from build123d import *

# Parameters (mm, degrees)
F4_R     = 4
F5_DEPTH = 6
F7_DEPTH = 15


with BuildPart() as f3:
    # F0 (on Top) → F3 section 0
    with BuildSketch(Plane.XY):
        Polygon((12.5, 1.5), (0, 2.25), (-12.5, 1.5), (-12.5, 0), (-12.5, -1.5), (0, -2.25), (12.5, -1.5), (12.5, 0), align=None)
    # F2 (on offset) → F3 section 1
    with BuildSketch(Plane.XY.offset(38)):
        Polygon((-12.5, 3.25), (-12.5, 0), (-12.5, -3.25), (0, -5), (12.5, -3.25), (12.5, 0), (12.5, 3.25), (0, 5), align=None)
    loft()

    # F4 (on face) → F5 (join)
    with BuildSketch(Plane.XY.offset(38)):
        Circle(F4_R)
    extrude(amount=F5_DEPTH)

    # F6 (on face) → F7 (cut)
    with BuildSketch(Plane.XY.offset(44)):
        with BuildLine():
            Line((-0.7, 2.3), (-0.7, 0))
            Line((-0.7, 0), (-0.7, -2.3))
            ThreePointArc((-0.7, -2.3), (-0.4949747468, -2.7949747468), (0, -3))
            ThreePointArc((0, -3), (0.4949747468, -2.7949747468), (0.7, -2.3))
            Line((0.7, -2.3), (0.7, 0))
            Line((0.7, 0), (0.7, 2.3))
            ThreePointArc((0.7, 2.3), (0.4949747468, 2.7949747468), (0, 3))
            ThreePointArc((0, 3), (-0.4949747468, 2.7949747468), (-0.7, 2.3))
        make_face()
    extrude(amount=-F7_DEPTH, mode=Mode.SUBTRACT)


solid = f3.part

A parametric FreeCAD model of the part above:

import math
import FreeCAD as App
import Part
import Sketcher

V = App.Vector
Q = App.Units.Quantity

doc = App.newDocument("Part")
params = doc.addObject("Spreadsheet::Sheet", "Params")
for row, (alias, value) in enumerate([
    ("sketch1_height", "3 mm"),
    ("sketch2_height", "6.5 mm"),
    ("sketch3_diameter", "8 mm"),
    ("pad1_length", "6 mm"),
    ("sketch4_radius", "0.7 mm"),
    ("sketch4_height", "4.6 mm"),
    ("pocket1_length", "15 mm"),
], start=1):
    params.set(f"A{row}", alias)
    params.set(f"B{row}", "=" + value)
    params.setAlias(f"B{row}", alias)

body = doc.addObject("PartDesign::Body", "Body")

sketch1 = doc.addObject("Sketcher::SketchObject", "Sketch")
body.addObject(sketch1)
sketch1.AttachmentSupport = (doc.XY_Plane, [""])
sketch1.MapMode = "FlatFace"
sketch1.addGeometry(Part.LineSegment(V(12.5, 1.5, 0), V(0, 2.2, 0)), False)
sketch1.addGeometry(Part.LineSegment(V(0, 2.2, 0), V(-12.5, 1.5, 0)), False)
sketch1.addGeometry(Part.LineSegment(V(-12.5, 1.5, 0), V(-12.5, -1.5, 0)), False)
sketch1.addGeometry(Part.LineSegment(V(-12.5, -1.5, 0), V(0, -2.2, 0)), False)
sketch1.addGeometry(Part.LineSegment(V(0, -2.2, 0), V(12.5, -1.5, 0)), False)
sketch1.addGeometry(Part.LineSegment(V(12.5, -1.5, 0), V(12.5, 1.5, 0)), False)
sketch1.addConstraint(Sketcher.Constraint("Coincident", 0, 2, 1, 1))
sketch1.addConstraint(Sketcher.Constraint("Coincident", 1, 2, 2, 1))
sketch1.addConstraint(Sketcher.Constraint("Coincident", 2, 2, 3, 1))
sketch1.addConstraint(Sketcher.Constraint("Coincident", 3, 2, 4, 1))
sketch1.addConstraint(Sketcher.Constraint("Coincident", 4, 2, 5, 1))
sketch1.addConstraint(Sketcher.Constraint("Coincident", 5, 2, 0, 1))
sketch1.addConstraint(Sketcher.Constraint("Vertical", 2))
sketch1.addConstraint(Sketcher.Constraint("Vertical", 5))
sketch1.addConstraint(Sketcher.Constraint("Symmetric", 0, 2, 3, 2, -1, 1))
sketch1.addConstraint(Sketcher.Constraint("Symmetric", 1, 2, 4, 2, -1, 1))
sketch1.addConstraint(Sketcher.Constraint("PointOnObject", 0, 2, -2))
sketch1.addConstraint(Sketcher.Constraint("Parallel", 0, 3))
sketch1.addConstraint(Sketcher.Constraint("Horizontal", 2, 2, 4, 2))
sketch1.addConstraint(Sketcher.Constraint("DistanceY", 2, 2, 2, 1, Q("3 mm")))
sketch1.addConstraint(Sketcher.Constraint("DistanceX", 2, 2, 4, 2, Q("25 mm")))
sketch1.addConstraint(Sketcher.Constraint("DistanceY", 3, 2, 0, 2, Q("4.5 mm")))
sketch1.setExpression("Constraints[13]", "Params.sketch1_height")

sketch2 = doc.addObject("Sketcher::SketchObject", "Sketch001")
body.addObject(sketch2)
sketch2.AttachmentSupport = (doc.XY_Plane, [""])
sketch2.MapMode = "FlatFace"
sketch2.AttachmentOffset = App.Placement(V(0, 0, 38), App.Rotation())
sketch2.addGeometry(Part.LineSegment(V(-12, 3, 0), V(-12, -3, 0)), False)
sketch2.addGeometry(Part.LineSegment(V(-12, -3, 0), V(0, -5, 0)), False)
sketch2.addGeometry(Part.LineSegment(V(0, -5, 0), V(12, -3, 0)), False)
sketch2.addGeometry(Part.LineSegment(V(12, -3, 0), V(12, 3, 0)), False)
sketch2.addGeometry(Part.LineSegment(V(12, 3, 0), V(0, 5, 0)), False)
sketch2.addGeometry(Part.LineSegment(V(0, 5, 0), V(-12, 3, 0)), False)
sketch2.addConstraint(Sketcher.Constraint("Coincident", 0, 2, 1, 1))
sketch2.addConstraint(Sketcher.Constraint("Coincident", 1, 2, 2, 1))
sketch2.addConstraint(Sketcher.Constraint("Coincident", 2, 2, 3, 1))
sketch2.addConstraint(Sketcher.Constraint("Coincident", 3, 2, 4, 1))
sketch2.addConstraint(Sketcher.Constraint("Coincident", 4, 2, 5, 1))
sketch2.addConstraint(Sketcher.Constraint("Coincident", 5, 2, 0, 1))
sketch2.addConstraint(Sketcher.Constraint("Vertical", 0))
sketch2.addConstraint(Sketcher.Constraint("Vertical", 3))
sketch2.addConstraint(Sketcher.Constraint("Symmetric", 0, 2, 3, 2, -1, 1))
sketch2.addConstraint(Sketcher.Constraint("Symmetric", 1, 2, 4, 2, -1, 1))
sketch2.addConstraint(Sketcher.Constraint("PointOnObject", 1, 2, -2))
sketch2.addConstraint(Sketcher.Constraint("Parallel", 2, 5))
sketch2.addConstraint(Sketcher.Constraint("Horizontal", 0, 2, 2, 2))
sketch2.addConstraint(Sketcher.Constraint("DistanceY", 0, 2, 0, 1, Q("6.5 mm")))
sketch2.addConstraint(Sketcher.Constraint("DistanceY", 1, 2, -1, 1, Q("5 mm")))
sketch2.addConstraint(Sketcher.Constraint("DistanceX", 0, 2, 2, 2, Q("25 mm")))
sketch2.setExpression("Constraints[13]", "Params.sketch2_height")

additiveloft = doc.addObject("PartDesign::AdditiveLoft", "AdditiveLoft")
body.addObject(additiveloft)
additiveloft.Profile = sketch1
additiveloft.Sections = [sketch2]

sketch3 = doc.addObject("Sketcher::SketchObject", "Sketch002")
body.addObject(sketch3)
sketch3.AttachmentSupport = (doc.XY_Plane, [""])
sketch3.MapMode = "FlatFace"
sketch3.AttachmentOffset = App.Placement(V(0, 0, 38), App.Rotation())
sketch3.addGeometry(Part.Circle(V(0, 0, 0), V(0, 0, 1), 4), False)
sketch3.addConstraint(Sketcher.Constraint("Coincident", 0, 3, -1, 1))
sketch3.addConstraint(Sketcher.Constraint("Diameter", 0, Q("8 mm")))
sketch3.setExpression("Constraints[1]", "Params.sketch3_diameter")
pad1 = doc.addObject("PartDesign::Pad", "Pad")
body.addObject(pad1)
pad1.Profile = sketch3
pad1.setExpression("Length", "Params.pad1_length")

sketch4 = doc.addObject("Sketcher::SketchObject", "Sketch003")
body.addObject(sketch4)
sketch4.AttachmentSupport = (doc.XY_Plane, [""])
sketch4.MapMode = "FlatFace"
sketch4.AttachmentOffset = App.Placement(V(0, 0, 44), App.Rotation())
sketch4.addGeometry(Part.LineSegment(V(-0.7, 2.3, 0), V(-0.7, -2.3, 0)), False)
sketch4.addGeometry(Part.ArcOfCircle(Part.Circle(V(0, -2.3, 0), V(0, 0, 1), 0.7), math.radians(180), math.radians(270)), False)
sketch4.addGeometry(Part.ArcOfCircle(Part.Circle(V(0, -2.3, 0), V(0, 0, 1), 0.7), math.radians(-90), math.radians(0)), False)
sketch4.addGeometry(Part.LineSegment(V(0.7, -2.3, 0), V(0.7, 2.3, 0)), False)
sketch4.addGeometry(Part.ArcOfCircle(Part.Circle(V(0, 2.3, 0), V(0, 0, 1), 0.7), math.radians(0), math.radians(90)), False)
sketch4.addGeometry(Part.ArcOfCircle(Part.Circle(V(0, 2.3, 0), V(0, 0, 1), 0.7), math.radians(90), math.radians(180)), False)
sketch4.addConstraint(Sketcher.Constraint("Tangent", 0, 2, 1, 1))
sketch4.addConstraint(Sketcher.Constraint("Tangent", 1, 2, 2, 1))
sketch4.addConstraint(Sketcher.Constraint("Tangent", 2, 2, 3, 1))
sketch4.addConstraint(Sketcher.Constraint("Tangent", 3, 2, 4, 1))
sketch4.addConstraint(Sketcher.Constraint("Tangent", 4, 2, 5, 1))
sketch4.addConstraint(Sketcher.Constraint("Tangent", 5, 2, 0, 1))
sketch4.addConstraint(Sketcher.Constraint("Vertical", 0))
sketch4.addConstraint(Sketcher.Constraint("Vertical", 3))
sketch4.addConstraint(Sketcher.Constraint("Equal", 1, 2))
sketch4.addConstraint(Sketcher.Constraint("Equal", 2, 4))
sketch4.addConstraint(Sketcher.Constraint("Symmetric", 1, 3, 4, 3, -1, 1))
sketch4.addConstraint(Sketcher.Constraint("PointOnObject", 1, 2, -2))
sketch4.addConstraint(Sketcher.Constraint("PointOnObject", 4, 2, -2))
sketch4.addConstraint(Sketcher.Constraint("Radius", 1, Q("0.7 mm")))
sketch4.addConstraint(Sketcher.Constraint("DistanceY", 0, 2, 0, 1, Q("4.6 mm")))
sketch4.setExpression("Constraints[13]", "Params.sketch4_radius")
sketch4.setExpression("Constraints[14]", "Params.sketch4_height")
pocket1 = doc.addObject("PartDesign::Pocket", "Pocket")
body.addObject(pocket1)
pocket1.Profile = sketch4
pocket1.setExpression("Length", "Params.pocket1_length")

doc.recompute()
